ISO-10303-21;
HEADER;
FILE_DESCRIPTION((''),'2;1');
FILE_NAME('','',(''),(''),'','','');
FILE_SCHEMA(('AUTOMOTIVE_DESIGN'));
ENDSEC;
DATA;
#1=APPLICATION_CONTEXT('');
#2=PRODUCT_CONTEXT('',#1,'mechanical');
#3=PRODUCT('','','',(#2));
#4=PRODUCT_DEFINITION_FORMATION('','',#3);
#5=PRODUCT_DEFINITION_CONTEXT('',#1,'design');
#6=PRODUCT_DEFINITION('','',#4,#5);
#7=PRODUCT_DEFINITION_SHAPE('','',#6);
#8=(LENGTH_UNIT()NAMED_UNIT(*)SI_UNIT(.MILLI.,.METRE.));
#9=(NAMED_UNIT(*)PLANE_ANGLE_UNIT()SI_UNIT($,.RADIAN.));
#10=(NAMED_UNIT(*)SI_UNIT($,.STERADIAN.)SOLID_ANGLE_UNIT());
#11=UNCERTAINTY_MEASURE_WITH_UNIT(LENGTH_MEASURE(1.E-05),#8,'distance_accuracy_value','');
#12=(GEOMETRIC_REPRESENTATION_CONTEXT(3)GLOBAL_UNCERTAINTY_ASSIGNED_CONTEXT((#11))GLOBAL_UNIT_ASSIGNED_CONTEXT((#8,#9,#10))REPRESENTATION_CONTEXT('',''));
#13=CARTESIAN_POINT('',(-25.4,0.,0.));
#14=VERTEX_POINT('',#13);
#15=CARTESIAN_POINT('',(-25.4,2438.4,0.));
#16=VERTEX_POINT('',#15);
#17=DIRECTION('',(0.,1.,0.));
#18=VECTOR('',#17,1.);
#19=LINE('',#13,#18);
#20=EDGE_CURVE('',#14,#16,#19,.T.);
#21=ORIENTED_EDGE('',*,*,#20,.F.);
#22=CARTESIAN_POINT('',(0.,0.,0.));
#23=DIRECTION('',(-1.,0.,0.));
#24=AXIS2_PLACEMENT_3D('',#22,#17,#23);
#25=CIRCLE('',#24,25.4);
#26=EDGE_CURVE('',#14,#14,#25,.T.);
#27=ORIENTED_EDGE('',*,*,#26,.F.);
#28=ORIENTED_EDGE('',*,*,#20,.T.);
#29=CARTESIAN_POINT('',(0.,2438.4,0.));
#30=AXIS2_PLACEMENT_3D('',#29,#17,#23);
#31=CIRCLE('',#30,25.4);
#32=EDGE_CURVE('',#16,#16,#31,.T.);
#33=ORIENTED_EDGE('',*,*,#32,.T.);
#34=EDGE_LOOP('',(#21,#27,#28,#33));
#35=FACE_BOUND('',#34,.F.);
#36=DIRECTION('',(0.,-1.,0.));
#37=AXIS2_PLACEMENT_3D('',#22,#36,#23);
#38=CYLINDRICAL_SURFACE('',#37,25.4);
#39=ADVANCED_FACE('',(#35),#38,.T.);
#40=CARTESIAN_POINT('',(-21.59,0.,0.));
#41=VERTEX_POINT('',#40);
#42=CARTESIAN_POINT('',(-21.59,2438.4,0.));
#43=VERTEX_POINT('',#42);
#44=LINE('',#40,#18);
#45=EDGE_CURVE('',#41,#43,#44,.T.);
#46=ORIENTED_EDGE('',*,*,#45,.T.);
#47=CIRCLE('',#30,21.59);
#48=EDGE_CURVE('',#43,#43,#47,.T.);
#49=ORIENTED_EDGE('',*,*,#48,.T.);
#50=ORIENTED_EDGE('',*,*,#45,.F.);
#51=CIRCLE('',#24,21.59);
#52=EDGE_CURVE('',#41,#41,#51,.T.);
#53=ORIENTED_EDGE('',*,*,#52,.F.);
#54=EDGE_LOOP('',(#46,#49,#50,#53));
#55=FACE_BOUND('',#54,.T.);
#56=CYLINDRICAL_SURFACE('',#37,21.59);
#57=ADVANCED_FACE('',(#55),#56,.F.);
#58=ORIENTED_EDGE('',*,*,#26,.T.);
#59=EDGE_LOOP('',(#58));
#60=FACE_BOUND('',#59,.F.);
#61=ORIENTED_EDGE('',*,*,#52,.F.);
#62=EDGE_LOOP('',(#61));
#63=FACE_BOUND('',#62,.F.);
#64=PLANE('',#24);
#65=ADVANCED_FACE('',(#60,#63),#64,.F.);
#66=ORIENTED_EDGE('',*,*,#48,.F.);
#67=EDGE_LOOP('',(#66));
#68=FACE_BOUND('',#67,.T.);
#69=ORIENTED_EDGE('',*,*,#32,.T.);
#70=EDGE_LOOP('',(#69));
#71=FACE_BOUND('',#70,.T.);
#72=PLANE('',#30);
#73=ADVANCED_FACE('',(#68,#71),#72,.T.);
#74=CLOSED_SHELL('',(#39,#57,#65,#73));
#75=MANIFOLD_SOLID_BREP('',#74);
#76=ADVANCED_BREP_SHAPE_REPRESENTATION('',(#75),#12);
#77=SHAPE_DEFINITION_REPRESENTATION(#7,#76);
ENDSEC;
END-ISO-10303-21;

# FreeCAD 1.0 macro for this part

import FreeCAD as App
import Part
import Sketcher
Q = App.Units.Quantity

doc = App.newDocument("Part")
params = doc.addObject("Spreadsheet::Sheet", "Params")
for row, (alias, value) in enumerate([
    ("sketch1_diameter", "2 in"),
    ("sketch1_diameter2", "1.7 in"),
    ("pad1_length", "96 in"),
], start=1):
    params.set(f"A{row}", alias)
    params.set(f"B{row}", "=" + value)
    params.setAlias(f"B{row}", alias)

body = doc.addObject("PartDesign::Body", "Body")

# Sketch on XZ plane
sketch1 = body.newObject("Sketcher::SketchObject", "Sketch")
sketch1.AttachmentSupport = (doc.getObject("XZ_Plane"), [""])
sketch1.MapMode = "FlatFace"
sketch1.addGeometry(Part.Circle(App.Vector(0, 0, 0), App.Vector(0, 0, 1), 25), False)
sketch1.addGeometry(Part.Circle(App.Vector(0, 0, 0), App.Vector(0, 0, 1), 22), False)
sketch1.addConstraint(Sketcher.Constraint("Coincident", 0, 3, -1, 1))
sketch1.addConstraint(Sketcher.Constraint("Coincident", 1, 3, -1, 1))
sketch1.addConstraint(Sketcher.Constraint("Diameter", 0, Q("2 in")))
sketch1.addConstraint(Sketcher.Constraint("Diameter", 1, Q("1.7 in")))
sketch1.setExpression("Constraints[2]", "Params.sketch1_diameter")
sketch1.setExpression("Constraints[3]", "Params.sketch1_diameter2")
pad1 = body.newObject("PartDesign::Pad", "Pad")
pad1.Profile = sketch1
pad1.setExpression("Length", "Params.pad1_length")
pad1.Reversed = True

doc.recompute()
